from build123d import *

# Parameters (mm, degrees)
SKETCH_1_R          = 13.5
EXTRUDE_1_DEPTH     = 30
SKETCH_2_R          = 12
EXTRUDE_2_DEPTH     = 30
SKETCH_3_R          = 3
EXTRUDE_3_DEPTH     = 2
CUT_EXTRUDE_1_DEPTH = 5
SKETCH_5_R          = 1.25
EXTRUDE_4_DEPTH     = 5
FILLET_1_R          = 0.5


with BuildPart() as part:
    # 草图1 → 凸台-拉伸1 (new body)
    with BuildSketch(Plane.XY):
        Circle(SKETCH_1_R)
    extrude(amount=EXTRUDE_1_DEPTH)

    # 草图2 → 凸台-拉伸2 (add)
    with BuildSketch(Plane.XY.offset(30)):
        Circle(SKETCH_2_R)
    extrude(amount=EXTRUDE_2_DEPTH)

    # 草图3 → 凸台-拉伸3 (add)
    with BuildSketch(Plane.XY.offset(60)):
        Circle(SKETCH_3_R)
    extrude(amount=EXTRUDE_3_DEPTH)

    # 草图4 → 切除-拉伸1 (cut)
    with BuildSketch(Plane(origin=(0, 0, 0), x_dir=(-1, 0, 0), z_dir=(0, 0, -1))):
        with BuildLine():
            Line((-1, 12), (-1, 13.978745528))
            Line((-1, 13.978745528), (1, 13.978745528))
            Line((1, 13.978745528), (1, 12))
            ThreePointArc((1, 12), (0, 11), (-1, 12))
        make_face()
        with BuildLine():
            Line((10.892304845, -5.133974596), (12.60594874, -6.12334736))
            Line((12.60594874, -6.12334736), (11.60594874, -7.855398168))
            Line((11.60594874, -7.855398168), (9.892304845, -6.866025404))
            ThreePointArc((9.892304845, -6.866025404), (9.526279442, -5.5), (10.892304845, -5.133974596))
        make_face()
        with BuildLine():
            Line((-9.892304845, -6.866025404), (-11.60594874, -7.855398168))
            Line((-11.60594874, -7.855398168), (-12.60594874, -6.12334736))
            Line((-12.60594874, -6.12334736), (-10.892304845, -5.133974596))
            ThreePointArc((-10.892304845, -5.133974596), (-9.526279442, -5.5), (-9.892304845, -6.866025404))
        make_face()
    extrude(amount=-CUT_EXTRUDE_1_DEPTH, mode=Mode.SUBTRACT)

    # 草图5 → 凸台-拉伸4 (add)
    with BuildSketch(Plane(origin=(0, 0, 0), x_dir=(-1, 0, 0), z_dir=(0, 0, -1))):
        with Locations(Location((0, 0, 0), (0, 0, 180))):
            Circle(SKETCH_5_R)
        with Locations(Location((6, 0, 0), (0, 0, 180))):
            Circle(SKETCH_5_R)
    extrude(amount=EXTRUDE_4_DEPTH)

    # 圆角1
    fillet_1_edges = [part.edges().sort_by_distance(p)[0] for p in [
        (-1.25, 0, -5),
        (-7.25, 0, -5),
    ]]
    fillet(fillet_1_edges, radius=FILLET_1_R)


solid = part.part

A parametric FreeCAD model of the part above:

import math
import FreeCAD as App
import Part
import Sketcher
from FreeCAD import Vector
Q = App.Units.Quantity


def edges_at(feature, points):
    """Names of the edges that pass closest to the given points."""
    edges = feature.Shape.Edges
    near = lambda p: min(range(len(edges)), key=lambda i: edges[i].distToShape(Part.Vertex(*p))[0])
    return sorted({f"Edge{near(p) + 1}" for p in points})

doc = App.newDocument("Part")
params = doc.addObject("Spreadsheet::Sheet", "Params")
for row, (alias, value) in enumerate([
    ("sketch1_diameter", "27 mm"),
    ("pad1_length", "30 mm"),
    ("sketch2_diameter", "24 mm"),
    ("pad2_length", "30 mm"),
    ("sketch3_diameter", "6 mm"),
    ("pad3_length", "2 mm"),
    ("sketch4_radius", "1 mm"),
    ("pocket1_length", "5 mm"),
    ("sketch5_diameter", "2.5 mm"),
    ("pad4_length", "5 mm"),
    ("fillet_radius", "0.5 mm"),
], start=1):
    params.set(f"A{row}", alias)
    params.set(f"B{row}", "=" + value)
    params.setAlias(f"B{row}", alias)

body = doc.addObject("PartDesign::Body", "Body")

# Sketch on XY plane
sketch1 = body.newObject("Sketcher::SketchObject", "Sketch")
sketch1.AttachmentSupport = (doc.getObject("XY_Plane"), [""])
sketch1.MapMode = "FlatFace"
sketch1.addGeometry(Part.Circle(Vector(0, 0, 0), Vector(0, 0, 1), 13.5), False)
sketch1.addConstraint(Sketcher.Constraint("Coincident", 0, 3, -1, 1))
sketch1.addConstraint(Sketcher.Constraint("Diameter", 0, 27.0))
sketch1.setExpression("Constraints[1]", "Params.sketch1_diameter")
pad1 = body.newObject("PartDesign::Pad", "Pad")
pad1.Profile = sketch1
pad1.setExpression("Length", "Params.pad1_length")

# Sketch on XY plane
sketch2 = body.newObject("Sketcher::SketchObject", "Sketch001")
sketch2.AttachmentSupport = (doc.getObject("XY_Plane"), [""])
sketch2.MapMode = "FlatFace"
sketch2.AttachmentOffset = App.Placement(Vector(0, 0, 30), App.Rotation())
sketch2.addGeometry(Part.Circle(Vector(0, 0, 0), Vector(0, 0, 1), 12), False)
sketch2.addConstraint(Sketcher.Constraint("Coincident", 0, 3, -1, 1))
sketch2.addConstraint(Sketcher.Constraint("Diameter", 0, 24.0))
sketch2.setExpression("Constraints[1]", "Params.sketch2_diameter")
pad2 = body.newObject("PartDesign::Pad", "Pad001")
pad2.Profile = sketch2
pad2.setExpression("Length", "Params.pad2_length")

# Sketch on XY plane
sketch3 = body.newObject("Sketcher::SketchObject", "Sketch002")
sketch3.AttachmentSupport = (doc.getObject("XY_Plane"), [""])
sketch3.MapMode = "FlatFace"
sketch3.AttachmentOffset = App.Placement(Vector(0, 0, 60), App.Rotation())
sketch3.addGeometry(Part.Circle(Vector(0, 0, 0), Vector(0, 0, 1), 3), False)
sketch3.addConstraint(Sketcher.Constraint("Coincident", 0, 3, -1, 1))
sketch3.addConstraint(Sketcher.Constraint("Diameter", 0, 6.0))
sketch3.setExpression("Constraints[1]", "Params.sketch3_diameter")
pad3 = body.newObject("PartDesign::Pad", "Pad002")
pad3.Profile = sketch3
pad3.setExpression("Length", "Params.pad3_length")

# Sketch on XY plane
sketch4 = body.newObject("Sketcher::SketchObject", "Sketch003")
sketch4.AttachmentSupport = (doc.getObject("XY_Plane"), [""])
sketch4.MapMode = "FlatFace"
sketch4.addGeometry(Part.LineSegment(Vector(1, 13.978746, 0), Vector(1, 12, 0)), False)
sketch4.addGeometry(Part.ArcOfCircle(Part.Circle(Vector(0, 12, 0), Vector(0, 0, 1), 1), math.radians(180), math.radians(360)), False)
sketch4.addGeometry(Part.LineSegment(Vector(-1, 12, 0), Vector(-1, 13.978746, 0)), False)
sketch4.addGeometry(Part.LineSegment(Vector(-1, 13.978746, 0), Vector(1, 13.978746, 0)), False)
sketch4.addGeometry(Part.LineSegment(Vector(-12.605949, -6.123347, 0), Vector(-10.892305, -5.133975, 0)), False)
sketch4.addGeometry(Part.ArcOfCircle(Part.Circle(Vector(-10.392305, -6, 0), Vector(0, 0, 1), 1), math.radians(-60), math.radians(120)), False)
sketch4.addGeometry(Part.LineSegment(Vector(-9.892305, -6.866025, 0), Vector(-11.605949, -7.855398, 0)), False)
sketch4.addGeometry(Part.LineSegment(Vector(-11.605949, -7.855398, 0), Vector(-12.605949, -6.123347, 0)), False)
sketch4.addGeometry(Part.LineSegment(Vector(11.605949, -7.855398, 0), Vector(9.892305, -6.866025, 0)), False)
sketch4.addGeometry(Part.ArcOfCircle(Part.Circle(Vector(10.392305, -6, 0), Vector(0, 0, 1), 1), math.radians(60), math.radians(240)), False)
sketch4.addGeometry(Part.LineSegment(Vector(10.892305, -5.133975, 0), Vector(12.605949, -6.123347, 0)), False)
sketch4.addGeometry(Part.LineSegment(Vector(12.605949, -6.123347, 0), Vector(11.605949, -7.855398, 0)), False)
sketch4.addConstraint(Sketcher.Constraint("Tangent", 0, 2, 1, 2))
sketch4.addConstraint(Sketcher.Constraint("Tangent", 1, 1, 2, 1))
sketch4.addConstraint(Sketcher.Constraint("Coincident", 2, 2, 3, 1))
sketch4.addConstraint(Sketcher.Constraint("Coincident", 3, 2, 0, 1))
sketch4.addConstraint(Sketcher.Constraint("Tangent", 4, 2, 5, 2))
sketch4.addConstraint(Sketcher.Constraint("Tangent", 5, 1, 6, 1))
sketch4.addConstraint(Sketcher.Constraint("Coincident", 6, 2, 7, 1))
sketch4.addConstraint(Sketcher.Constraint("Coincident", 7, 2, 4, 1))
sketch4.addConstraint(Sketcher.Constraint("Tangent", 8, 2, 9, 2))
sketch4.addConstraint(Sketcher.Constraint("Tangent", 9, 1, 10, 1))
sketch4.addConstraint(Sketcher.Constraint("Coincident", 10, 2, 11, 1))
sketch4.addConstraint(Sketcher.Constraint("Coincident", 11, 2, 8, 1))
sketch4.addConstraint(Sketcher.Constraint("Vertical", 0))
sketch4.addConstraint(Sketcher.Constraint("Vertical", 2))
sketch4.addConstraint(Sketcher.Constraint("Horizontal", 3))
sketch4.addConstraint(Sketcher.Constraint("Equal", 1, 5))
sketch4.addConstraint(Sketcher.Constraint("Equal", 5, 9))
sketch4.addConstraint(Sketcher.Constraint("Symmetric", 5, 3, 9, 3, -2))
sketch4.addConstraint(Sketcher.Constraint("Symmetric", 7, 2, 10, 2, -2))
sketch4.addConstraint(Sketcher.Constraint("Symmetric", 6, 2, 11, 2, -2))
sketch4.addConstraint(Sketcher.Constraint("PointOnObject", 1, 3, -2))
sketch4.addConstraint(Sketcher.Constraint("Parallel", 4, 6))
sketch4.addConstraint(Sketcher.Constraint("Perpendicular", 6, 7))
sketch4.addConstraint(Sketcher.Constraint("Radius", 1, 1.0))
sketch4.addConstraint(Sketcher.Constraint("Angle", 4, Q("30 deg")))
sketch4.addConstraint(Sketcher.Constraint("DistanceY", -1, 1, 1, 3, 12.0))
sketch4.addConstraint(Sketcher.Constraint("DistanceY", 5, 3, -1, 1, 6.0))
sketch4.addConstraint(Sketcher.Constraint("DistanceY", 6, 2, -1, 1, 7.855398))
sketch4.addConstraint(Sketcher.Constraint("DistanceY", 0, 2, 0, 1, 1.978746))
sketch4.addConstraint(Sketcher.Constraint("DistanceX", 6, 2, -1, 1, 11.605949))
sketch4.setExpression("Constraints[23]", "Params.sketch4_radius")
pocket1 = body.newObject("PartDesign::Pocket", "Pocket")
pocket1.Profile = sketch4
pocket1.setExpression("Length", "Params.pocket1_length")
pocket1.Reversed = True

# Sketch on XY plane
sketch5 = body.newObject("Sketcher::SketchObject", "Sketch004")
sketch5.AttachmentSupport = (doc.getObject("XY_Plane"), [""])
sketch5.MapMode = "FlatFace"
sketch5.addGeometry(Part.Circle(Vector(0, 0, 0), Vector(0, 0, 1), 1.25), False)
sketch5.addGeometry(Part.Circle(Vector(-6, 0, 0), Vector(0, 0, 1), 1.25), False)
sketch5.addConstraint(Sketcher.Constraint("Coincident", 0, 3, -1, 1))
sketch5.addConstraint(Sketcher.Constraint("Equal", 0, 1))
sketch5.addConstraint(Sketcher.Constraint("PointOnObject", 1, 3, -1))
sketch5.addConstraint(Sketcher.Constraint("Diameter", 0, 2.5))
sketch5.addConstraint(Sketcher.Constraint("DistanceX", 1, 3, -1, 1, 6.0))
sketch5.setExpression("Constraints[3]", "Params.sketch5_diameter")
pad4 = body.newObject("PartDesign::Pad", "Pad003")
pad4.Profile = sketch5
pad4.setExpression("Length", "Params.pad4_length")
pad4.Reversed = True
doc.recompute()

fillet = body.newObject("PartDesign::Fillet", "Fillet")
fillet.Base = (pad4, edges_at(pad4, [(-1.25, 0, -5), (-7.25, 0, -5)]))
fillet.setExpression("Radius", "Params.fillet_radius")

doc.recompute()
